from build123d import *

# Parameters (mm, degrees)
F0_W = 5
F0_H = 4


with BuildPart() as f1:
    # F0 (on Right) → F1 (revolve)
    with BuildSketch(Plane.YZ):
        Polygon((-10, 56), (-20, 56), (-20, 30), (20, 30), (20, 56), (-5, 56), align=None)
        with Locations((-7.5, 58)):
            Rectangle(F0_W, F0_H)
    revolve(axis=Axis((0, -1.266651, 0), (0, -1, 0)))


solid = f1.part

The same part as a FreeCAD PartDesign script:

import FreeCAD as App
import Part
import Sketcher
from FreeCAD import Vector
Q = App.Units.Quantity

doc = App.newDocument("Part")
params = doc.addObject("Spreadsheet::Sheet", "Params")
for row, (alias, value) in enumerate([
    ("sketch1_width", "40 mm"),
    ("sketch1_width2", "25 mm"),
    ("sketch1_width3", "5 mm"),
    ("sketch1_height", "26 mm"),
    ("sketch1_height2", "4 mm"),
    ("revolution_angle", "360 deg"),
], start=1):
    params.set(f"A{row}", alias)
    params.set(f"B{row}", "=" + value)
    params.setAlias(f"B{row}", alias)

body = doc.addObject("PartDesign::Body", "Body")

sketch1 = body.newObject("Sketcher::SketchObject", "Sketch")
sketch1.AttachmentSupport = (doc.getObject("YZ_Plane"), [""])
sketch1.MapMode = "FlatFace"
sketch1.addGeometry([
    Part.LineSegment(Vector(-20, 56, 0), Vector(-20, 30, 0)),
    Part.LineSegment(Vector(-20, 30, 0), Vector(20, 30, 0)),
    Part.LineSegment(Vector(20, 30, 0), Vector(20, 56, 0)),
    Part.LineSegment(Vector(20, 56, 0), Vector(-5, 56, 0)),
    Part.LineSegment(Vector(-5, 56, 0), Vector(-5, 60, 0)),
    Part.LineSegment(Vector(-5, 60, 0), Vector(-10, 60, 0)),
    Part.LineSegment(Vector(-10, 60, 0), Vector(-10, 56, 0)),
    Part.LineSegment(Vector(-10, 56, 0), Vector(-20, 56, 0)),
], False)
sketch1.addConstraint([
    Sketcher.Constraint("Coincident", 0, 2, 1, 1),
    Sketcher.Constraint("Coincident", 1, 2, 2, 1),
    Sketcher.Constraint("Coincident", 2, 2, 3, 1),
    Sketcher.Constraint("Coincident", 3, 2, 4, 1),
    Sketcher.Constraint("Coincident", 4, 2, 5, 1),
    Sketcher.Constraint("Coincident", 5, 2, 6, 1),
    Sketcher.Constraint("Coincident", 6, 2, 7, 1),
    Sketcher.Constraint("Coincident", 7, 2, 0, 1),
    Sketcher.Constraint("Vertical", 0),
    Sketcher.Constraint("Horizontal", 1),
    Sketcher.Constraint("Vertical", 2),
    Sketcher.Constraint("Horizontal", 3),
    Sketcher.Constraint("Vertical", 4),
    Sketcher.Constraint("Horizontal", 5),
    Sketcher.Constraint("Vertical", 6),
    Sketcher.Constraint("Horizontal", 7),
    Sketcher.Constraint("Symmetric", 2, 2, 7, 2, -2),
    Sketcher.Constraint("DistanceX", 1, 1, 1, 2, Q("40 mm")),
    Sketcher.Constraint("DistanceX", 3, 2, 3, 1, Q("25 mm")),
    Sketcher.Constraint("DistanceX", 5, 2, 5, 1, Q("5 mm")),
    Sketcher.Constraint("DistanceY", 0, 2, 0, 1, Q("26 mm")),
    Sketcher.Constraint("DistanceY", 4, 1, 4, 2, Q("4 mm")),
    Sketcher.Constraint("DistanceY", -1, 1, 0, 2, Q("30 mm")),
])
sketch1.setExpression("Constraints[17]", "Params.sketch1_width")
sketch1.setExpression("Constraints[18]", "Params.sketch1_width2")
sketch1.setExpression("Constraints[19]", "Params.sketch1_width3")
sketch1.setExpression("Constraints[20]", "Params.sketch1_height")
sketch1.setExpression("Constraints[21]", "Params.sketch1_height2")
revolution = body.newObject("PartDesign::Revolution", "Revolution")
revolution.Profile = sketch1
revolution.ReferenceAxis = (sketch1, ["H_Axis"])
revolution.setExpression("Angle", "Params.revolution_angle")

doc.recompute()
